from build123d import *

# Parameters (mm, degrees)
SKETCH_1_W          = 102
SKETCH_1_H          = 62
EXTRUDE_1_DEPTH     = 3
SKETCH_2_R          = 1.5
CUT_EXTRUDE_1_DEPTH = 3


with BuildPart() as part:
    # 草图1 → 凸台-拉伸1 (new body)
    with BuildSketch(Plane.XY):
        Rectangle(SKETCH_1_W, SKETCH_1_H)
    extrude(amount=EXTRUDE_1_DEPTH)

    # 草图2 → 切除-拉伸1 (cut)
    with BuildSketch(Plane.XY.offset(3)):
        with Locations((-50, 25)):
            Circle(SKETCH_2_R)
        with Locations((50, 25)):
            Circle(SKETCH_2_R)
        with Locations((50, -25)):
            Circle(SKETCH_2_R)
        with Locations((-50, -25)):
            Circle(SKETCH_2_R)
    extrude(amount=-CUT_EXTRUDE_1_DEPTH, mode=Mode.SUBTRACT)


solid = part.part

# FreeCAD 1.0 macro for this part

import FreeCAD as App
import Part
import Sketcher
Q = App.Units.Quantity


def add_polygon(sketch, points):
    """Adds a closed chain of lines whose ends are joined by coincident constraints."""
    first, n = sketch.GeometryCount, len(points)
    for a, b in zip(points, points[1:] + points[:1]):
        sketch.addGeometry(Part.LineSegment(App.Vector(*a, 0), App.Vector(*b, 0)), False)
    for i in range(n):
        sketch.addConstraint(Sketcher.Constraint("Coincident", first + i, 2, first + (i + 1) % n, 1))

doc = App.newDocument("Part")
body = doc.addObject("PartDesign::Body", "Body")

# Sketch on XY plane
sketch1 = body.newObject("Sketcher::SketchObject", "Sketch")
sketch1.AttachmentSupport = (doc.getObject("XY_Plane"), [""])
sketch1.MapMode = "FlatFace"
add_polygon(sketch1, [(-51, 31), (-51, -31), (51, -31), (51, 31)])  # lines 0-3
sketch1.addConstraint(Sketcher.Constraint("Vertical", 0))
sketch1.addConstraint(Sketcher.Constraint("Horizontal", 1))
sketch1.addConstraint(Sketcher.Constraint("Vertical", 2))
sketch1.addConstraint(Sketcher.Constraint("Horizontal", 3))
sketch1.addConstraint(Sketcher.Constraint("Symmetric", 0, 2, 2, 2, -1, 1))
sketch1.addConstraint(Sketcher.Constraint("DistanceX", 1, 1, 1, 2, Q("102 mm")))
sketch1.addConstraint(Sketcher.Constraint("DistanceY", 0, 2, 0, 1, Q("62 mm")))
pad1 = body.newObject("PartDesign::Pad", "Pad")
pad1.Profile = sketch1
pad1.Length = 3

# Sketch on XY plane
sketch2 = body.newObject("Sketcher::SketchObject", "Sketch001")
sketch2.AttachmentSupport = (doc.getObject("XY_Plane"), [""])
sketch2.MapMode = "FlatFace"
sketch2.AttachmentOffset = App.Placement(App.Vector(0, 0, 3), App.Rotation())
sketch2.addGeometry(Part.Circle(App.Vector(-50, 25, 0), App.Vector(0, 0, 1), 1.5), False)
sketch2.addGeometry(Part.Circle(App.Vector(50, 25, 0), App.Vector(0, 0, 1), 1.5), False)
sketch2.addGeometry(Part.Circle(App.Vector(50, -25, 0), App.Vector(0, 0, 1), 1.5), False)
sketch2.addGeometry(Part.Circle(App.Vector(-50, -25, 0), App.Vector(0, 0, 1), 1.5), False)
sketch2.addConstraint(Sketcher.Constraint("Equal", 0, 1))
sketch2.addConstraint(Sketcher.Constraint("Equal", 1, 2))
sketch2.addConstraint(Sketcher.Constraint("Equal", 2, 3))
sketch2.addConstraint(Sketcher.Constraint("Symmetric", 0, 3, 2, 3, -1, 1))
sketch2.addConstraint(Sketcher.Constraint("Symmetric", 1, 3, 3, 3, -1, 1))
sketch2.addConstraint(Sketcher.Constraint("Symmetric", 0, 3, 1, 3, -2))
sketch2.addConstraint(Sketcher.Constraint("Diameter", 0, Q("3 mm")))
sketch2.addConstraint(Sketcher.Constraint("DistanceX", 0, 3, -1, 1, Q("50 mm")))
sketch2.addConstraint(Sketcher.Constraint("DistanceY", -1, 1, 0, 3, Q("25 mm")))
pocket1 = body.newObject("PartDesign::Pocket", "Pocket")
pocket1.Profile = sketch2
pocket1.Length = 3

doc.recompute()
